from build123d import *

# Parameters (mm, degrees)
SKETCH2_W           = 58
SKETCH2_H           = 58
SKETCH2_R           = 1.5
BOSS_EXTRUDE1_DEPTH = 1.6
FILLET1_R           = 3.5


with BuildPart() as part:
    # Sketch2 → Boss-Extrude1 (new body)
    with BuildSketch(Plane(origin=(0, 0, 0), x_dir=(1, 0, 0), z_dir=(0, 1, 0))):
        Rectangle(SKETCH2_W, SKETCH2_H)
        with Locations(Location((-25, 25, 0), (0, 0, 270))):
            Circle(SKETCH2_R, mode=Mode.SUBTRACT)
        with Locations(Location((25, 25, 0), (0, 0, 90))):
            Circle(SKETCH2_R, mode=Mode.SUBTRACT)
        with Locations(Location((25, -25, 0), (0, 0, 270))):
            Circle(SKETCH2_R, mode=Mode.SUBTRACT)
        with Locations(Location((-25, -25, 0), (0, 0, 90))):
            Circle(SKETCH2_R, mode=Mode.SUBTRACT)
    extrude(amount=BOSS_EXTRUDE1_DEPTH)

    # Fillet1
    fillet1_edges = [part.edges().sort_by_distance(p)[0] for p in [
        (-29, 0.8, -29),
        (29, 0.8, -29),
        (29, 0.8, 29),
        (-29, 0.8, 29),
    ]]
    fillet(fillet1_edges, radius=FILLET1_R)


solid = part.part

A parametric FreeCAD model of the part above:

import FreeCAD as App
import Part
import Sketcher
from FreeCAD import Vector


def edges_at(feature, points):
    """Names of the edges that pass closest to the given points."""
    edges = feature.Shape.Edges
    near = lambda p: min(range(len(edges)), key=lambda i: edges[i].distToShape(Part.Vertex(*p))[0])
    return sorted({f"Edge{near(p) + 1}" for p in points})


def add_polygon(sketch, points):
    """Adds a closed chain of lines whose ends are joined by coincident constraints."""
    first, n = sketch.GeometryCount, len(points)
    for a, b in zip(points, points[1:] + points[:1]):
        sketch.addGeometry(Part.LineSegment(App.Vector(*a, 0), App.Vector(*b, 0)), False)
    for i in range(n):
        sketch.addConstraint(Sketcher.Constraint("Coincident", first + i, 2, first + (i + 1) % n, 1))

doc = App.newDocument("Part")
body = doc.addObject("PartDesign::Body", "Body")

sketch1 = doc.addObject("Sketcher::SketchObject", "Sketch")
body.addObject(sketch1)
sketch1.AttachmentSupport = (doc.XZ_Plane, [""])
sketch1.MapMode = "FlatFace"
add_polygon(sketch1, [(-29, -29), (-29, 29), (29, 29), (29, -29)])
sketch1.addGeometry(Part.Circle(Vector(-25, 25, 0), Vector(0, 0, 1), 1.5), False)
sketch1.addGeometry(Part.Circle(Vector(25, 25, 0), Vector(0, 0, 1), 1.5), False)
sketch1.addGeometry(Part.Circle(Vector(-25, -25, 0), Vector(0, 0, 1), 1.5), False)
sketch1.addGeometry(Part.Circle(Vector(25, -25, 0), Vector(0, 0, 1), 1.5), False)
sketch1.addConstraint([
    Sketcher.Constraint("Vertical", 0),
    Sketcher.Constraint("Horizontal", 1),
    Sketcher.Constraint("Vertical", 2),
    Sketcher.Constraint("Horizontal", 3),
    Sketcher.Constraint("Equal", 4, 5),
    Sketcher.Constraint("Equal", 5, 6),
    Sketcher.Constraint("Equal", 6, 7),
    Sketcher.Constraint("Symmetric", 5, 3, 6, 3, -1, 1),
    Sketcher.Constraint("Symmetric", 4, 3, 7, 3, -1, 1),
    Sketcher.Constraint("Symmetric", 0, 2, 2, 2, -1, 1),
    Sketcher.Constraint("Symmetric", 4, 3, 5, 3, -2),
    Sketcher.Constraint("Equal", 3, 0),
    Sketcher.Constraint("Diameter", 4, 3.0),
    Sketcher.Constraint("DistanceX", 1, 1, 1, 2, 58.0),
    Sketcher.Constraint("DistanceX", 4, 3, -1, 1, 25.0),
    Sketcher.Constraint("DistanceY", -1, 1, 4, 3, 25.0),
])
pad1 = doc.addObject("PartDesign::Pad", "Pad")
body.addObject(pad1)
pad1.Profile = sketch1
pad1.Length = 1.6
pad1.Reversed = True
doc.recompute()

fillet = doc.addObject("PartDesign::Fillet", "Fillet")
body.addObject(fillet)
fillet.Base = (pad1, edges_at(pad1, [
    (-29, 0.8, -29),
    (29, 0.8, -29),
    (29, 0.8, 29),
    (-29, 0.8, 29),
]))
fillet.Radius = 3.5

doc.recompute()
